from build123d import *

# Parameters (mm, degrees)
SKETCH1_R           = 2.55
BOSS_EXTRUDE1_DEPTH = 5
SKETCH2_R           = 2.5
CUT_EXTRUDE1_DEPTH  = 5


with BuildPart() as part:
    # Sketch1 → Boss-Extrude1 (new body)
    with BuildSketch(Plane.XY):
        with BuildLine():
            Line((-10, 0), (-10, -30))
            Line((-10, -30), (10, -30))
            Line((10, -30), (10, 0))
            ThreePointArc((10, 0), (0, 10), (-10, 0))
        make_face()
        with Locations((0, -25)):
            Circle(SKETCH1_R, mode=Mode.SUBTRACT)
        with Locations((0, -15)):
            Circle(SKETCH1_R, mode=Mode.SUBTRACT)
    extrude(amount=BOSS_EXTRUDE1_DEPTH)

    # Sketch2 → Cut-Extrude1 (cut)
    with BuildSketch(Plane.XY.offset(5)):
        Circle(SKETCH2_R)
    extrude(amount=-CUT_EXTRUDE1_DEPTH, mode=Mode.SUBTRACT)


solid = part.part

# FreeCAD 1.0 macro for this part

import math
import FreeCAD as App
import Part
import Sketcher
from FreeCAD import Vector

doc = App.newDocument("Part")
body = doc.addObject("PartDesign::Body", "Body")

# Sketch on XY plane
sketch1 = body.newObject("Sketcher::SketchObject", "Sketch")
sketch1.AttachmentSupport = (doc.getObject("XY_Plane"), [""])
sketch1.MapMode = "FlatFace"
sketch1.addGeometry([
    Part.LineSegment(Vector(-10, 0, 0), Vector(-10, -30, 0)),  # 0
    Part.LineSegment(Vector(-10, -30, 0), Vector(10, -30, 0)),  # 1
    Part.LineSegment(Vector(10, -30, 0), Vector(10, 0, 0)),  # 2
    Part.ArcOfCircle(Part.Circle(Vector(0, 0, 0), Vector(0, 0, 1), 10), math.radians(0), math.radians(180)),  # 3
    Part.Circle(Vector(0, -25, 0), Vector(0, 0, 1), 2.5),  # 4
    Part.Circle(Vector(0, -15, 0), Vector(0, 0, 1), 2.5),  # 5
], False)
sketch1.addConstraint([
    Sketcher.Constraint("Coincident", 0, 2, 1, 1),
    Sketcher.Constraint("Coincident", 1, 2, 2, 1),
    Sketcher.Constraint("Tangent", 2, 2, 3, 1),
    Sketcher.Constraint("Tangent", 3, 2, 0, 1),
    Sketcher.Constraint("Vertical", 0),
    Sketcher.Constraint("Horizontal", 1),
    Sketcher.Constraint("Vertical", 2),
    Sketcher.Constraint("Coincident", 3, 3, -1, 1),
    Sketcher.Constraint("Equal", 4, 5),
    Sketcher.Constraint("PointOnObject", 4, 3, -2),
    Sketcher.Constraint("PointOnObject", 5, 3, -2),
    Sketcher.Constraint("Radius", 3, 10.0),
    Sketcher.Constraint("Diameter", 4, 5.1),
    Sketcher.Constraint("DistanceY", 0, 2, 0, 1, 30.0),
    Sketcher.Constraint("DistanceY", 4, 3, -1, 1, 25.0),
    Sketcher.Constraint("DistanceY", 5, 3, -1, 1, 15.0),
])
pad1 = body.newObject("PartDesign::Pad", "Pad")
pad1.Profile = sketch1
pad1.Length = 5

# Sketch on XY plane
sketch2 = body.newObject("Sketcher::SketchObject", "Sketch001")
sketch2.AttachmentSupport = (doc.getObject("XY_Plane"), [""])
sketch2.MapMode = "FlatFace"
sketch2.AttachmentOffset = App.Placement(Vector(0, 0, 5), App.Rotation())
sketch2.addGeometry(Part.Circle(Vector(0, 0, 0), Vector(0, 0, 1), 2.5), False)
sketch2.addConstraint([
    Sketcher.Constraint("Coincident", 0, 3, -1, 1),
    Sketcher.Constraint("Diameter", 0, 5.0),
])
pocket1 = body.newObject("PartDesign::Pocket", "Pocket")
pocket1.Profile = sketch2
pocket1.Length = 5

doc.recompute()
